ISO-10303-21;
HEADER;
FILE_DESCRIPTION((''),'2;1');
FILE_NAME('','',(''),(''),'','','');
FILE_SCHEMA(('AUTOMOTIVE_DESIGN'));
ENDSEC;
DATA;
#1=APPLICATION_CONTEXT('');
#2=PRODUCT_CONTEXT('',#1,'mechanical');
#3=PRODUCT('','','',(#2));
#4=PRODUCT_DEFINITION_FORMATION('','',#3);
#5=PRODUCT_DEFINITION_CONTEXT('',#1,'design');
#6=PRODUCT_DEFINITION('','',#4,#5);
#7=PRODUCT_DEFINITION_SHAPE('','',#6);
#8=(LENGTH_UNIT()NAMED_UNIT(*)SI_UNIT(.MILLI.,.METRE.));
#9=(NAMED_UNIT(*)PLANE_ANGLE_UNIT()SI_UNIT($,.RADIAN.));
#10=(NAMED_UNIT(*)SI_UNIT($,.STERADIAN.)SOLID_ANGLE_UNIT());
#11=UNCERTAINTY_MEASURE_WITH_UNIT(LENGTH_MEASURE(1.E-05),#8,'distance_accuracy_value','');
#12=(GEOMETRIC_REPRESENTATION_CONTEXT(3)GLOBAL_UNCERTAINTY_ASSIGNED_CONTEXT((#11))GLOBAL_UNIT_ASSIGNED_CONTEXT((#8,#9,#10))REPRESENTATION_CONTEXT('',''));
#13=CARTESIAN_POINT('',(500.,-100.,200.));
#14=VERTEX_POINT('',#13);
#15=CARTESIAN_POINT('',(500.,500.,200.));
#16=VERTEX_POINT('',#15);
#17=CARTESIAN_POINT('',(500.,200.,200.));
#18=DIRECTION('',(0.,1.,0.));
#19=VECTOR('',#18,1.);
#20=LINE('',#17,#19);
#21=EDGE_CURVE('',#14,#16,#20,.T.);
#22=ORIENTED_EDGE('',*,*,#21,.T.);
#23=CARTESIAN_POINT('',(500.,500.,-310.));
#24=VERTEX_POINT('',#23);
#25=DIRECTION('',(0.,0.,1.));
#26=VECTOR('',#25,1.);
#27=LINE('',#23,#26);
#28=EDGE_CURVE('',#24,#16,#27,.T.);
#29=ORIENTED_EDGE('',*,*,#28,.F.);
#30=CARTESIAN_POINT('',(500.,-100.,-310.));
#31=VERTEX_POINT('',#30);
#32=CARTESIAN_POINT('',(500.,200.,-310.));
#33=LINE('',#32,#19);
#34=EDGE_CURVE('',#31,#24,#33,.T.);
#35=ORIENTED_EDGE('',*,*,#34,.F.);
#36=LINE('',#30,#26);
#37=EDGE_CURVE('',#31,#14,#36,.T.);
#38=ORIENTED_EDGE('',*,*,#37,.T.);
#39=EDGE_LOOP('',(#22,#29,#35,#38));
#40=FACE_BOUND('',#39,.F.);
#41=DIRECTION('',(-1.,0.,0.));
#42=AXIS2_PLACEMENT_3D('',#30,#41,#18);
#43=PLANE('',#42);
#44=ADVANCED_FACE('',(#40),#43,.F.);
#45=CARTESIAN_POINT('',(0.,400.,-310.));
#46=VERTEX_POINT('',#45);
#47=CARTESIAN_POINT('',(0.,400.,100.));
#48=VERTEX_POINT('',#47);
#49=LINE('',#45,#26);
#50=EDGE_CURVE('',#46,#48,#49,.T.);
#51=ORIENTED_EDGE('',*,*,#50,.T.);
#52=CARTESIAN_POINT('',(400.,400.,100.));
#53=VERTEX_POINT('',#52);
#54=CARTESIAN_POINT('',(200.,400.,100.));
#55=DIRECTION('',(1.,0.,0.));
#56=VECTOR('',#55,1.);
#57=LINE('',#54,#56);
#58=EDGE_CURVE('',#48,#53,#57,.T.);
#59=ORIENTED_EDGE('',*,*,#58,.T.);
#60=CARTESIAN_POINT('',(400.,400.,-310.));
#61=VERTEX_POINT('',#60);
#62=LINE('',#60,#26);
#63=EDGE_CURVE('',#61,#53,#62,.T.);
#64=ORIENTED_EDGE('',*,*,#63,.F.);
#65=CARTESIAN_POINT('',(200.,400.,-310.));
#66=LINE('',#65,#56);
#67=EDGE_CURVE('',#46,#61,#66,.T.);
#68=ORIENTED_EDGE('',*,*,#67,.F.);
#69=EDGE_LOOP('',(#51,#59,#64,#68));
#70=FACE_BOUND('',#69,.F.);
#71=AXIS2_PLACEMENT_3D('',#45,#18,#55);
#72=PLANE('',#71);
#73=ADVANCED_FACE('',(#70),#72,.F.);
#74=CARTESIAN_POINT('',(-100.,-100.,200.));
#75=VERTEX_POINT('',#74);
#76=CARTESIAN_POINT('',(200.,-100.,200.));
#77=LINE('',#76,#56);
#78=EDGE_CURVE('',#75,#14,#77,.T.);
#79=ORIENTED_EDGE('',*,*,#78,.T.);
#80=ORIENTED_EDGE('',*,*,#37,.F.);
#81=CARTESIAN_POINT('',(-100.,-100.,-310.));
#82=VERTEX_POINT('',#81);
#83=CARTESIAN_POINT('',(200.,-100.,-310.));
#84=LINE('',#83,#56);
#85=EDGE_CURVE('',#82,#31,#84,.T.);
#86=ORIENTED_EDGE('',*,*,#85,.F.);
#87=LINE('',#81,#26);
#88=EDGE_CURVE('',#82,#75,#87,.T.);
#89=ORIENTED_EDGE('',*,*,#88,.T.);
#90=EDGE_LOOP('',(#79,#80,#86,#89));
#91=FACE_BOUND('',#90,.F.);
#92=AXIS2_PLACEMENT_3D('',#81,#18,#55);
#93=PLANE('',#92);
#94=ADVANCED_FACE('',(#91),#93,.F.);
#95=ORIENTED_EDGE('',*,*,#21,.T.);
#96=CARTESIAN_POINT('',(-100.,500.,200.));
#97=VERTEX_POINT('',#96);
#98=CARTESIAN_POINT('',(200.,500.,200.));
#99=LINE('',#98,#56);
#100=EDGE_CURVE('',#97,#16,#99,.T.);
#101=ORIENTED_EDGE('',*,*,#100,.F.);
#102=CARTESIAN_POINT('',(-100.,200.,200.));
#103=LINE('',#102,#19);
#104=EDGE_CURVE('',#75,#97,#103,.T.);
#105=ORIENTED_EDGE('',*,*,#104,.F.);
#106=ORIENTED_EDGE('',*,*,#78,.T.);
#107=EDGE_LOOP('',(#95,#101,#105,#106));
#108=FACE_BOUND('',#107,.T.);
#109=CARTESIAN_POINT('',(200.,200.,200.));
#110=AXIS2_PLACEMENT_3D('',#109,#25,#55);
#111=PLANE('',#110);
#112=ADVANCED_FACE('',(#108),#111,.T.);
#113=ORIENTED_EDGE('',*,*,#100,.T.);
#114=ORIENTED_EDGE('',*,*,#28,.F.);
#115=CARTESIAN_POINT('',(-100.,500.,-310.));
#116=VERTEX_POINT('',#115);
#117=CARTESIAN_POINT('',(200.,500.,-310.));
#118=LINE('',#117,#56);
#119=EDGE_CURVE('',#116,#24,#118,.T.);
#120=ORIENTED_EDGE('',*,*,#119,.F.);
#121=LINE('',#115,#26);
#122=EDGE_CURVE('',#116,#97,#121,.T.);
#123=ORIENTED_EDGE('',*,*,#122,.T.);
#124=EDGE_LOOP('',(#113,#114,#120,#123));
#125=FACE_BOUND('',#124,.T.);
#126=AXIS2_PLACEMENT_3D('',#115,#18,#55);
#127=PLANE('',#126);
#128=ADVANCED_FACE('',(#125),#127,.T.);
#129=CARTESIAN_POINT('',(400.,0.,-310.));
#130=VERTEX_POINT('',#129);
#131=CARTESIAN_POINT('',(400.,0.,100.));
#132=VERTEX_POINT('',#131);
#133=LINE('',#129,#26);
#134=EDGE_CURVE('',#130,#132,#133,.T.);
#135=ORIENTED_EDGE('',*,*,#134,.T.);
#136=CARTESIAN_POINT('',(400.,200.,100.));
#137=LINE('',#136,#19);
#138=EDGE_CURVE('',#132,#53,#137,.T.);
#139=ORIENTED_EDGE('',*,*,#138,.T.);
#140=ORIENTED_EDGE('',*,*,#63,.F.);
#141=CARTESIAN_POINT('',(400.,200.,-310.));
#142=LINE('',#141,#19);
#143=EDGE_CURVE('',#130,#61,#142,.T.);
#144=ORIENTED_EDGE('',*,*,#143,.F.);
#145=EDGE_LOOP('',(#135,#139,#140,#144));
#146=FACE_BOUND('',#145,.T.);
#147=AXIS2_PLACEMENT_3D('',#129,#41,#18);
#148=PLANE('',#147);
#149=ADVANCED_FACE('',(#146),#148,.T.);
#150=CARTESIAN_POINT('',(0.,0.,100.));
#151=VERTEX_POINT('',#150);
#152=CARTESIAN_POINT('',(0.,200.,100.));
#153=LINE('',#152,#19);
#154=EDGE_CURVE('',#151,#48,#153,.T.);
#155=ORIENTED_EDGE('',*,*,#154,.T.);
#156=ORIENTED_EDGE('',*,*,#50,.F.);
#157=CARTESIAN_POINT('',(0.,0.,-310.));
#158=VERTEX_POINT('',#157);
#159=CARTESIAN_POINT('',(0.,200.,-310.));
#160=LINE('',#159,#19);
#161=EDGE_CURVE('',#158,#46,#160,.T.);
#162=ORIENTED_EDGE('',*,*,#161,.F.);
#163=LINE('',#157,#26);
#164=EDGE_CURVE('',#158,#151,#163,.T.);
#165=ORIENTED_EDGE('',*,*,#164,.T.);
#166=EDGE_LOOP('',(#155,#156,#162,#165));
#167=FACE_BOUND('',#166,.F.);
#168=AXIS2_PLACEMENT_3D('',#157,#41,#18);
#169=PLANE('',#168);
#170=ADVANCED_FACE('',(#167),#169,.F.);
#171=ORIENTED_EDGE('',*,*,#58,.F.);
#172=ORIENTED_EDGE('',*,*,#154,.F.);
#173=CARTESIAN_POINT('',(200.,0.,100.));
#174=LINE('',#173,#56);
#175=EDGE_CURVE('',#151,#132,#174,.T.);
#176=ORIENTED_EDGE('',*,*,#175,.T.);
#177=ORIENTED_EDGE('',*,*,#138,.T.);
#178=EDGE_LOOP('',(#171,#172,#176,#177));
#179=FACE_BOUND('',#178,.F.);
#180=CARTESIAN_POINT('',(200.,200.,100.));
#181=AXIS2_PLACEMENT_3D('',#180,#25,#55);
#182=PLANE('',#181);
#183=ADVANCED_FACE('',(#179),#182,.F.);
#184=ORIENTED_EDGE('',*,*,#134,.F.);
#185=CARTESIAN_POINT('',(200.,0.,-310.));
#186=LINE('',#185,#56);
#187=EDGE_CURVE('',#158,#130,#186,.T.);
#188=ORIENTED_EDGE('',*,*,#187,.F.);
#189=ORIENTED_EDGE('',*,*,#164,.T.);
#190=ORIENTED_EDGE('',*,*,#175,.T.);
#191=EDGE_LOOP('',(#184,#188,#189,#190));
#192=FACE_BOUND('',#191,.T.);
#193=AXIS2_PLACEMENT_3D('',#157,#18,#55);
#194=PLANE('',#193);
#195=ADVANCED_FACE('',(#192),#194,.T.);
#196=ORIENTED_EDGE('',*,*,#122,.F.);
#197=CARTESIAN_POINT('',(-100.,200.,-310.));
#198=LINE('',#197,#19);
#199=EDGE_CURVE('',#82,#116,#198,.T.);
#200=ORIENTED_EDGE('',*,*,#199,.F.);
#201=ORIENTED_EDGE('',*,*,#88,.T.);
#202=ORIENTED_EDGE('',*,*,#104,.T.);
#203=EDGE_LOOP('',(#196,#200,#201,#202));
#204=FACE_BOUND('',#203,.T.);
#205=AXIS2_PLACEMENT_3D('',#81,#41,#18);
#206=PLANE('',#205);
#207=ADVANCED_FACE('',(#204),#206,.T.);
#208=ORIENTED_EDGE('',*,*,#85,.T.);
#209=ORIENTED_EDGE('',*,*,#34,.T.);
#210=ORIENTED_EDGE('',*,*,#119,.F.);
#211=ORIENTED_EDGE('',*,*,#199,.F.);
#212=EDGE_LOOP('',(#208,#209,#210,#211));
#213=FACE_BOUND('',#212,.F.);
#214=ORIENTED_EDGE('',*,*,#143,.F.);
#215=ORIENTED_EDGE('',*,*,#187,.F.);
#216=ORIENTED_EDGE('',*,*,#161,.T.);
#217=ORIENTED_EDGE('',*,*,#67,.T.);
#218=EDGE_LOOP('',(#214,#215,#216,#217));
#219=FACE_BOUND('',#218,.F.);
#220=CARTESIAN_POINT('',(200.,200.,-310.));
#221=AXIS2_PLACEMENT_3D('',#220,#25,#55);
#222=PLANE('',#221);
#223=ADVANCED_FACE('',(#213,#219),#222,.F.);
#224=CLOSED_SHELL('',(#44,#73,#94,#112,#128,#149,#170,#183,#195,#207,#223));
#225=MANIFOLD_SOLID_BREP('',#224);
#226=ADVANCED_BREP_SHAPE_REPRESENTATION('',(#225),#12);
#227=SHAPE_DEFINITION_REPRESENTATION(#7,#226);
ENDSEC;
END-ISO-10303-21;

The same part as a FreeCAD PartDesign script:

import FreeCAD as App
import Part
import Sketcher

V = App.Vector
Q = App.Units.Quantity


def add_polygon(sketch, points):
    """Adds a closed chain of lines whose ends are joined by coincident constraints."""
    first, n = sketch.GeometryCount, len(points)
    for a, b in zip(points, points[1:] + points[:1]):
        sketch.addGeometry(Part.LineSegment(App.Vector(*a, 0), App.Vector(*b, 0)), False)
    for i in range(n):
        sketch.addConstraint(Sketcher.Constraint("Coincident", first + i, 2, first + (i + 1) % n, 1))

doc = App.newDocument("Part")
body = doc.addObject("PartDesign::Body", "Body")

# Sketch on XY plane
sketch1 = body.newObject("Sketcher::SketchObject", "Sketch")
sketch1.AttachmentSupport = (doc.getObject("XY_Plane"), [""])
sketch1.MapMode = "FlatFace"
sketch1.AttachmentOffset = App.Placement(V(0, 0, -310), App.Rotation())
add_polygon(sketch1, [(0, 400), (0, 0), (400, 0), (400, 400)])  # lines 0-3
sketch1.addConstraint([
    Sketcher.Constraint("Vertical", 0),
    Sketcher.Constraint("Horizontal", 1),
    Sketcher.Constraint("Vertical", 2),
    Sketcher.Constraint("Horizontal", 3),
    Sketcher.Constraint("Coincident", 0, 2, -1, 1),
    Sketcher.Constraint("Equal", 3, 0),
    Sketcher.Constraint("DistanceX", 1, 1, 1, 2, Q("400 mm")),
])
pad1 = body.newObject("PartDesign::Pad", "Pad")
pad1.Profile = sketch1
pad1.Length = 410
body2 = doc.addObject("PartDesign::Body", "Body001")

# Sketch on XY plane
sketch2 = body2.newObject("Sketcher::SketchObject", "Sketch001")
sketch2.AttachmentSupport = (doc.getObject("XY_Plane001"), [""])
sketch2.MapMode = "FlatFace"
sketch2.AttachmentOffset = App.Placement(V(0, 0, -310), App.Rotation())
add_polygon(sketch2, [(-100, 500), (-100, -100), (500, -100), (500, 500)])  # lines 0-3
sketch2.addConstraint([
    Sketcher.Constraint("Vertical", 0),
    Sketcher.Constraint("Horizontal", 1),
    Sketcher.Constraint("Vertical", 2),
    Sketcher.Constraint("Horizontal", 3),
    Sketcher.Constraint("Equal", 3, 0),
    Sketcher.Constraint("DistanceX", 1, 1, 1, 2, Q("600 mm")),
    Sketcher.Constraint("DistanceX", 0, 2, -1, 1, Q("100 mm")),
    Sketcher.Constraint("DistanceY", 0, 2, -1, 1, Q("100 mm")),
])
pad2 = body2.newObject("PartDesign::Pad", "Pad001")
pad2.Profile = sketch2
pad2.Length = 510
doc.recompute()

boolean = body2.newObject("PartDesign::Boolean", "Boolean")
boolean.Type = "Cut"
boolean.addObjects([body])

doc.recompute()
